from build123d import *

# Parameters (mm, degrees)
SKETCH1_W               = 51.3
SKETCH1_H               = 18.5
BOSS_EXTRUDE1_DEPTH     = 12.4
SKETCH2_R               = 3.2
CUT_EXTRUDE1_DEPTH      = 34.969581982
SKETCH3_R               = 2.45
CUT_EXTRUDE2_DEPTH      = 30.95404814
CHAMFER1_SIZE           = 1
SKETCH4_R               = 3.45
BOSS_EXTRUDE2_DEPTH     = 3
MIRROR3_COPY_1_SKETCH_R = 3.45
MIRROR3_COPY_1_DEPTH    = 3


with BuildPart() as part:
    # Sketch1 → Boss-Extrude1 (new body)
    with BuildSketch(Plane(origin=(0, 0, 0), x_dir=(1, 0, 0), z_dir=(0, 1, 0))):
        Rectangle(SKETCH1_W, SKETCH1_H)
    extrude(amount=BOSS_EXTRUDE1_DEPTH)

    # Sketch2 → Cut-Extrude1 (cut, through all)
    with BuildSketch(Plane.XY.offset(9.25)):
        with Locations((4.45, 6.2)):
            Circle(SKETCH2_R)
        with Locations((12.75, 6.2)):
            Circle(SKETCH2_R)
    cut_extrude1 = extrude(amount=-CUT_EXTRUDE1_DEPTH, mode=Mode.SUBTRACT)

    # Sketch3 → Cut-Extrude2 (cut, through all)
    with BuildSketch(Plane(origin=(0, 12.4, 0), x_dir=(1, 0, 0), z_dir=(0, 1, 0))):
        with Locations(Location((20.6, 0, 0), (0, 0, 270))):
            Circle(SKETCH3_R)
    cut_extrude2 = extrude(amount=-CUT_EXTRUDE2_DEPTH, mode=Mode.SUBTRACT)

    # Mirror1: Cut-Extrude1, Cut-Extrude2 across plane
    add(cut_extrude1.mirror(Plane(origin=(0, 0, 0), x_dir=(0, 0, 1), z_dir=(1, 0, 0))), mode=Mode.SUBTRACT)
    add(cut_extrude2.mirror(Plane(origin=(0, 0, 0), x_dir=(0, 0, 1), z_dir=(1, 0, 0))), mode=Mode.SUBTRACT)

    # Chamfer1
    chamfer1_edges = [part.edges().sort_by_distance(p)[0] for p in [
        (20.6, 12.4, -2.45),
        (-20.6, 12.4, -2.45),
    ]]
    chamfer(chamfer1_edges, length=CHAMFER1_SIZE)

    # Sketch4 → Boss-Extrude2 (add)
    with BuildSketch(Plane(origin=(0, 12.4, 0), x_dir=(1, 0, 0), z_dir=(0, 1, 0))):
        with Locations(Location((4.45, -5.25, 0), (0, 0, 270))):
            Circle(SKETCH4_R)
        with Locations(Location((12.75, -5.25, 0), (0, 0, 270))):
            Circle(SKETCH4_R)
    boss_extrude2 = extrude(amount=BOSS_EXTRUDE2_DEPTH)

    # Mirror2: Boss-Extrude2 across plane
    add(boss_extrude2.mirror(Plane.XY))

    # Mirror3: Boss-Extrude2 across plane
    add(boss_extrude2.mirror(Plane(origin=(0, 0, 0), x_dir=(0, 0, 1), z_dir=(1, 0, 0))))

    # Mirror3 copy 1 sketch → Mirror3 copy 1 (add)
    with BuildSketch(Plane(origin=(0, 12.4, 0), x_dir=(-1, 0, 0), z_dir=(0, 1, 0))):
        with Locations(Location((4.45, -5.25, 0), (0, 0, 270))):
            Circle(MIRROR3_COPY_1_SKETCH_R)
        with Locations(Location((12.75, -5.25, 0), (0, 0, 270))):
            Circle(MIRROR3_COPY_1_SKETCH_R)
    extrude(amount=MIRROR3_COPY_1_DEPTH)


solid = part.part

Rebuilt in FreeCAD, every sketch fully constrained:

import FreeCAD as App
import Part
import Sketcher

V = App.Vector
Q = App.Units.Quantity


def edges_at(feature, points):
    """Names of the edges that pass closest to the given points."""
    edges = feature.Shape.Edges
    near = lambda p: min(range(len(edges)), key=lambda i: edges[i].distToShape(Part.Vertex(*p))[0])
    return sorted({f"Edge{near(p) + 1}" for p in points})

doc = App.newDocument("Part")
body = doc.addObject("PartDesign::Body", "Body")

# Sketch on XZ plane
sketch1 = body.newObject("Sketcher::SketchObject", "Sketch")
sketch1.AttachmentSupport = (doc.getObject("XZ_Plane"), [""])
sketch1.MapMode = "FlatFace"
sketch1.addGeometry(Part.LineSegment(V(-26, -9, 0), V(-26, 9, 0)), False)
sketch1.addGeometry(Part.LineSegment(V(-26, 9, 0), V(26, 9, 0)), False)
sketch1.addGeometry(Part.LineSegment(V(26, 9, 0), V(26, -9, 0)), False)
sketch1.addGeometry(Part.LineSegment(V(26, -9, 0), V(-26, -9, 0)), False)
sketch1.addConstraint(Sketcher.Constraint("Coincident", 0, 2, 1, 1))
sketch1.addConstraint(Sketcher.Constraint("Coincident", 1, 2, 2, 1))
sketch1.addConstraint(Sketcher.Constraint("Coincident", 2, 2, 3, 1))
sketch1.addConstraint(Sketcher.Constraint("Coincident", 3, 2, 0, 1))
sketch1.addConstraint(Sketcher.Constraint("Vertical", 0))
sketch1.addConstraint(Sketcher.Constraint("Horizontal", 1))
sketch1.addConstraint(Sketcher.Constraint("Vertical", 2))
sketch1.addConstraint(Sketcher.Constraint("Horizontal", 3))
sketch1.addConstraint(Sketcher.Constraint("Symmetric", 0, 2, 2, 2, -1, 1))
sketch1.addConstraint(Sketcher.Constraint("DistanceX", 1, 1, 1, 2, Q("51.3 mm")))
sketch1.addConstraint(Sketcher.Constraint("DistanceY", 0, 1, 0, 2, Q("18.5 mm")))
pad1 = body.newObject("PartDesign::Pad", "Pad")
pad1.Profile = sketch1
pad1.Length = 12.4
pad1.Reversed = True

# Sketch on XY plane
sketch2 = body.newObject("Sketcher::SketchObject", "Sketch001")
sketch2.AttachmentSupport = (doc.getObject("XY_Plane"), [""])
sketch2.MapMode = "FlatFace"
sketch2.AttachmentOffset = App.Placement(V(0, 0, 9.25), App.Rotation())
sketch2.addGeometry(Part.Circle(V(4.5, 6.2, 0), V(0, 0, 1), 3.2), False)
sketch2.addGeometry(Part.Circle(V(12.8, 6.2, 0), V(0, 0, 1), 3.2), False)
sketch2.addConstraint(Sketcher.Constraint("Equal", 0, 1))
sketch2.addConstraint(Sketcher.Constraint("Horizontal", 0, 3, 1, 3))
sketch2.addConstraint(Sketcher.Constraint("Diameter", 0, Q("6.4 mm")))
sketch2.addConstraint(Sketcher.Constraint("DistanceY", -1, 1, 0, 3, Q("6.2 mm")))
sketch2.addConstraint(Sketcher.Constraint("DistanceX", 0, 3, 1, 3, Q("8.3 mm")))
sketch2.addConstraint(Sketcher.Constraint("DistanceX", -1, 1, 0, 3, Q("4.45 mm")))
pocket1 = body.newObject("PartDesign::Pocket", "Pocket")
pocket1.Profile = sketch2
pocket1.Type = "ThroughAll"

# Sketch on XZ plane
sketch3 = body.newObject("Sketcher::SketchObject", "Sketch002")
sketch3.AttachmentSupport = (doc.getObject("XZ_Plane"), [""])
sketch3.MapMode = "FlatFace"
sketch3.AttachmentOffset = App.Placement(V(0, 0, -12.4), App.Rotation())
sketch3.addGeometry(Part.Circle(V(20.6, 0, 0), V(0, 0, 1), 2.5), False)
sketch3.addConstraint(Sketcher.Constraint("PointOnObject", 0, 3, -1))
sketch3.addConstraint(Sketcher.Constraint("Diameter", 0, Q("4.9 mm")))
sketch3.addConstraint(Sketcher.Constraint("DistanceX", -1, 1, 0, 3, Q("20.6 mm")))
pocket2 = body.newObject("PartDesign::Pocket", "Pocket001")
pocket2.Profile = sketch3
pocket2.Type = "ThroughAll"
pocket2.Reversed = True
doc.recompute()

mirrored = body.newObject("PartDesign::Mirrored", "Mirrored")
mirrored.Originals = [pocket1, pocket2]
mirrored.MirrorPlane = (doc.getObject("YZ_Plane"), [""])
body.Tip = mirrored
doc.recompute()

chamfer = body.newObject("PartDesign::Chamfer", "Chamfer")
chamfer.Base = (mirrored, edges_at(mirrored, [(20.6, 12.4, -2.45), (-20.6, 12.4, -2.45)]))
chamfer.Size = 1

# Sketch on XZ plane
sketch4 = body.newObject("Sketcher::SketchObject", "Sketch003")
sketch4.AttachmentSupport = (doc.getObject("XZ_Plane"), [""])
sketch4.MapMode = "FlatFace"
sketch4.AttachmentOffset = App.Placement(V(0, 0, -12.4), App.Rotation())
sketch4.addGeometry(Part.Circle(V(4.5, 5.2, 0), V(0, 0, 1), 3.5), False)
sketch4.addGeometry(Part.Circle(V(12.8, 5.2, 0), V(0, 0, 1), 3.5), False)
sketch4.addConstraint(Sketcher.Constraint("Equal", 0, 1))
sketch4.addConstraint(Sketcher.Constraint("Horizontal", 0, 3, 1, 3))
sketch4.addConstraint(Sketcher.Constraint("Diameter", 0, Q("6.9 mm")))
sketch4.addConstraint(Sketcher.Constraint("DistanceX", 0, 3, 1, 3, Q("8.3 mm")))
sketch4.addConstraint(Sketcher.Constraint("DistanceX", -1, 1, 0, 3, Q("4.45 mm")))
sketch4.addConstraint(Sketcher.Constraint("DistanceY", -1, 1, 0, 3, Q("5.25 mm")))
pad2 = body.newObject("PartDesign::Pad", "Pad001")
pad2.Profile = sketch4
pad2.Length = 3
pad2.Reversed = True
doc.recompute()

mirrored2 = body.newObject("PartDesign::Mirrored", "Mirrored001")
mirrored2.Originals = [pad2]
mirrored2.MirrorPlane = (doc.getObject("XY_Plane"), [""])
body.Tip = mirrored2
doc.recompute()

mirrored3 = body.newObject("PartDesign::Mirrored", "Mirrored002")
mirrored3.Originals = [pad2]
mirrored3.MirrorPlane = (doc.getObject("YZ_Plane"), [""])
body.Tip = mirrored3

# Sketch on XZ plane
sketch5 = body.newObject("Sketcher::SketchObject", "Sketch004")
sketch5.AttachmentSupport = (doc.getObject("XZ_Plane"), [""])
sketch5.MapMode = "FlatFace"
sketch5.AttachmentOffset = App.Placement(V(0, 0, -12.4), App.Rotation())
sketch5.addGeometry(Part.Circle(V(-4.5, -5.2, 0), V(0, 0, 1), 3.5), False)
sketch5.addGeometry(Part.Circle(V(-12.8, -5.2, 0), V(0, 0, 1), 3.5), False)
sketch5.addConstraint(Sketcher.Constraint("Equal", 0, 1))
sketch5.addConstraint(Sketcher.Constraint("Horizontal", 0, 3, 1, 3))
sketch5.addConstraint(Sketcher.Constraint("Diameter", 0, Q("6.9 mm")))
sketch5.addConstraint(Sketcher.Constraint("DistanceX", 1, 3, 0, 3, Q("8.3 mm")))
sketch5.addConstraint(Sketcher.Constraint("DistanceX", 0, 3, -1, 1, Q("4.45 mm")))
sketch5.addConstraint(Sketcher.Constraint("DistanceY", 0, 3, -1, 1, Q("5.25 mm")))
pad3 = body.newObject("PartDesign::Pad", "Pad002")
pad3.Profile = sketch5
pad3.Length = 3
pad3.Reversed = True

doc.recompute()
